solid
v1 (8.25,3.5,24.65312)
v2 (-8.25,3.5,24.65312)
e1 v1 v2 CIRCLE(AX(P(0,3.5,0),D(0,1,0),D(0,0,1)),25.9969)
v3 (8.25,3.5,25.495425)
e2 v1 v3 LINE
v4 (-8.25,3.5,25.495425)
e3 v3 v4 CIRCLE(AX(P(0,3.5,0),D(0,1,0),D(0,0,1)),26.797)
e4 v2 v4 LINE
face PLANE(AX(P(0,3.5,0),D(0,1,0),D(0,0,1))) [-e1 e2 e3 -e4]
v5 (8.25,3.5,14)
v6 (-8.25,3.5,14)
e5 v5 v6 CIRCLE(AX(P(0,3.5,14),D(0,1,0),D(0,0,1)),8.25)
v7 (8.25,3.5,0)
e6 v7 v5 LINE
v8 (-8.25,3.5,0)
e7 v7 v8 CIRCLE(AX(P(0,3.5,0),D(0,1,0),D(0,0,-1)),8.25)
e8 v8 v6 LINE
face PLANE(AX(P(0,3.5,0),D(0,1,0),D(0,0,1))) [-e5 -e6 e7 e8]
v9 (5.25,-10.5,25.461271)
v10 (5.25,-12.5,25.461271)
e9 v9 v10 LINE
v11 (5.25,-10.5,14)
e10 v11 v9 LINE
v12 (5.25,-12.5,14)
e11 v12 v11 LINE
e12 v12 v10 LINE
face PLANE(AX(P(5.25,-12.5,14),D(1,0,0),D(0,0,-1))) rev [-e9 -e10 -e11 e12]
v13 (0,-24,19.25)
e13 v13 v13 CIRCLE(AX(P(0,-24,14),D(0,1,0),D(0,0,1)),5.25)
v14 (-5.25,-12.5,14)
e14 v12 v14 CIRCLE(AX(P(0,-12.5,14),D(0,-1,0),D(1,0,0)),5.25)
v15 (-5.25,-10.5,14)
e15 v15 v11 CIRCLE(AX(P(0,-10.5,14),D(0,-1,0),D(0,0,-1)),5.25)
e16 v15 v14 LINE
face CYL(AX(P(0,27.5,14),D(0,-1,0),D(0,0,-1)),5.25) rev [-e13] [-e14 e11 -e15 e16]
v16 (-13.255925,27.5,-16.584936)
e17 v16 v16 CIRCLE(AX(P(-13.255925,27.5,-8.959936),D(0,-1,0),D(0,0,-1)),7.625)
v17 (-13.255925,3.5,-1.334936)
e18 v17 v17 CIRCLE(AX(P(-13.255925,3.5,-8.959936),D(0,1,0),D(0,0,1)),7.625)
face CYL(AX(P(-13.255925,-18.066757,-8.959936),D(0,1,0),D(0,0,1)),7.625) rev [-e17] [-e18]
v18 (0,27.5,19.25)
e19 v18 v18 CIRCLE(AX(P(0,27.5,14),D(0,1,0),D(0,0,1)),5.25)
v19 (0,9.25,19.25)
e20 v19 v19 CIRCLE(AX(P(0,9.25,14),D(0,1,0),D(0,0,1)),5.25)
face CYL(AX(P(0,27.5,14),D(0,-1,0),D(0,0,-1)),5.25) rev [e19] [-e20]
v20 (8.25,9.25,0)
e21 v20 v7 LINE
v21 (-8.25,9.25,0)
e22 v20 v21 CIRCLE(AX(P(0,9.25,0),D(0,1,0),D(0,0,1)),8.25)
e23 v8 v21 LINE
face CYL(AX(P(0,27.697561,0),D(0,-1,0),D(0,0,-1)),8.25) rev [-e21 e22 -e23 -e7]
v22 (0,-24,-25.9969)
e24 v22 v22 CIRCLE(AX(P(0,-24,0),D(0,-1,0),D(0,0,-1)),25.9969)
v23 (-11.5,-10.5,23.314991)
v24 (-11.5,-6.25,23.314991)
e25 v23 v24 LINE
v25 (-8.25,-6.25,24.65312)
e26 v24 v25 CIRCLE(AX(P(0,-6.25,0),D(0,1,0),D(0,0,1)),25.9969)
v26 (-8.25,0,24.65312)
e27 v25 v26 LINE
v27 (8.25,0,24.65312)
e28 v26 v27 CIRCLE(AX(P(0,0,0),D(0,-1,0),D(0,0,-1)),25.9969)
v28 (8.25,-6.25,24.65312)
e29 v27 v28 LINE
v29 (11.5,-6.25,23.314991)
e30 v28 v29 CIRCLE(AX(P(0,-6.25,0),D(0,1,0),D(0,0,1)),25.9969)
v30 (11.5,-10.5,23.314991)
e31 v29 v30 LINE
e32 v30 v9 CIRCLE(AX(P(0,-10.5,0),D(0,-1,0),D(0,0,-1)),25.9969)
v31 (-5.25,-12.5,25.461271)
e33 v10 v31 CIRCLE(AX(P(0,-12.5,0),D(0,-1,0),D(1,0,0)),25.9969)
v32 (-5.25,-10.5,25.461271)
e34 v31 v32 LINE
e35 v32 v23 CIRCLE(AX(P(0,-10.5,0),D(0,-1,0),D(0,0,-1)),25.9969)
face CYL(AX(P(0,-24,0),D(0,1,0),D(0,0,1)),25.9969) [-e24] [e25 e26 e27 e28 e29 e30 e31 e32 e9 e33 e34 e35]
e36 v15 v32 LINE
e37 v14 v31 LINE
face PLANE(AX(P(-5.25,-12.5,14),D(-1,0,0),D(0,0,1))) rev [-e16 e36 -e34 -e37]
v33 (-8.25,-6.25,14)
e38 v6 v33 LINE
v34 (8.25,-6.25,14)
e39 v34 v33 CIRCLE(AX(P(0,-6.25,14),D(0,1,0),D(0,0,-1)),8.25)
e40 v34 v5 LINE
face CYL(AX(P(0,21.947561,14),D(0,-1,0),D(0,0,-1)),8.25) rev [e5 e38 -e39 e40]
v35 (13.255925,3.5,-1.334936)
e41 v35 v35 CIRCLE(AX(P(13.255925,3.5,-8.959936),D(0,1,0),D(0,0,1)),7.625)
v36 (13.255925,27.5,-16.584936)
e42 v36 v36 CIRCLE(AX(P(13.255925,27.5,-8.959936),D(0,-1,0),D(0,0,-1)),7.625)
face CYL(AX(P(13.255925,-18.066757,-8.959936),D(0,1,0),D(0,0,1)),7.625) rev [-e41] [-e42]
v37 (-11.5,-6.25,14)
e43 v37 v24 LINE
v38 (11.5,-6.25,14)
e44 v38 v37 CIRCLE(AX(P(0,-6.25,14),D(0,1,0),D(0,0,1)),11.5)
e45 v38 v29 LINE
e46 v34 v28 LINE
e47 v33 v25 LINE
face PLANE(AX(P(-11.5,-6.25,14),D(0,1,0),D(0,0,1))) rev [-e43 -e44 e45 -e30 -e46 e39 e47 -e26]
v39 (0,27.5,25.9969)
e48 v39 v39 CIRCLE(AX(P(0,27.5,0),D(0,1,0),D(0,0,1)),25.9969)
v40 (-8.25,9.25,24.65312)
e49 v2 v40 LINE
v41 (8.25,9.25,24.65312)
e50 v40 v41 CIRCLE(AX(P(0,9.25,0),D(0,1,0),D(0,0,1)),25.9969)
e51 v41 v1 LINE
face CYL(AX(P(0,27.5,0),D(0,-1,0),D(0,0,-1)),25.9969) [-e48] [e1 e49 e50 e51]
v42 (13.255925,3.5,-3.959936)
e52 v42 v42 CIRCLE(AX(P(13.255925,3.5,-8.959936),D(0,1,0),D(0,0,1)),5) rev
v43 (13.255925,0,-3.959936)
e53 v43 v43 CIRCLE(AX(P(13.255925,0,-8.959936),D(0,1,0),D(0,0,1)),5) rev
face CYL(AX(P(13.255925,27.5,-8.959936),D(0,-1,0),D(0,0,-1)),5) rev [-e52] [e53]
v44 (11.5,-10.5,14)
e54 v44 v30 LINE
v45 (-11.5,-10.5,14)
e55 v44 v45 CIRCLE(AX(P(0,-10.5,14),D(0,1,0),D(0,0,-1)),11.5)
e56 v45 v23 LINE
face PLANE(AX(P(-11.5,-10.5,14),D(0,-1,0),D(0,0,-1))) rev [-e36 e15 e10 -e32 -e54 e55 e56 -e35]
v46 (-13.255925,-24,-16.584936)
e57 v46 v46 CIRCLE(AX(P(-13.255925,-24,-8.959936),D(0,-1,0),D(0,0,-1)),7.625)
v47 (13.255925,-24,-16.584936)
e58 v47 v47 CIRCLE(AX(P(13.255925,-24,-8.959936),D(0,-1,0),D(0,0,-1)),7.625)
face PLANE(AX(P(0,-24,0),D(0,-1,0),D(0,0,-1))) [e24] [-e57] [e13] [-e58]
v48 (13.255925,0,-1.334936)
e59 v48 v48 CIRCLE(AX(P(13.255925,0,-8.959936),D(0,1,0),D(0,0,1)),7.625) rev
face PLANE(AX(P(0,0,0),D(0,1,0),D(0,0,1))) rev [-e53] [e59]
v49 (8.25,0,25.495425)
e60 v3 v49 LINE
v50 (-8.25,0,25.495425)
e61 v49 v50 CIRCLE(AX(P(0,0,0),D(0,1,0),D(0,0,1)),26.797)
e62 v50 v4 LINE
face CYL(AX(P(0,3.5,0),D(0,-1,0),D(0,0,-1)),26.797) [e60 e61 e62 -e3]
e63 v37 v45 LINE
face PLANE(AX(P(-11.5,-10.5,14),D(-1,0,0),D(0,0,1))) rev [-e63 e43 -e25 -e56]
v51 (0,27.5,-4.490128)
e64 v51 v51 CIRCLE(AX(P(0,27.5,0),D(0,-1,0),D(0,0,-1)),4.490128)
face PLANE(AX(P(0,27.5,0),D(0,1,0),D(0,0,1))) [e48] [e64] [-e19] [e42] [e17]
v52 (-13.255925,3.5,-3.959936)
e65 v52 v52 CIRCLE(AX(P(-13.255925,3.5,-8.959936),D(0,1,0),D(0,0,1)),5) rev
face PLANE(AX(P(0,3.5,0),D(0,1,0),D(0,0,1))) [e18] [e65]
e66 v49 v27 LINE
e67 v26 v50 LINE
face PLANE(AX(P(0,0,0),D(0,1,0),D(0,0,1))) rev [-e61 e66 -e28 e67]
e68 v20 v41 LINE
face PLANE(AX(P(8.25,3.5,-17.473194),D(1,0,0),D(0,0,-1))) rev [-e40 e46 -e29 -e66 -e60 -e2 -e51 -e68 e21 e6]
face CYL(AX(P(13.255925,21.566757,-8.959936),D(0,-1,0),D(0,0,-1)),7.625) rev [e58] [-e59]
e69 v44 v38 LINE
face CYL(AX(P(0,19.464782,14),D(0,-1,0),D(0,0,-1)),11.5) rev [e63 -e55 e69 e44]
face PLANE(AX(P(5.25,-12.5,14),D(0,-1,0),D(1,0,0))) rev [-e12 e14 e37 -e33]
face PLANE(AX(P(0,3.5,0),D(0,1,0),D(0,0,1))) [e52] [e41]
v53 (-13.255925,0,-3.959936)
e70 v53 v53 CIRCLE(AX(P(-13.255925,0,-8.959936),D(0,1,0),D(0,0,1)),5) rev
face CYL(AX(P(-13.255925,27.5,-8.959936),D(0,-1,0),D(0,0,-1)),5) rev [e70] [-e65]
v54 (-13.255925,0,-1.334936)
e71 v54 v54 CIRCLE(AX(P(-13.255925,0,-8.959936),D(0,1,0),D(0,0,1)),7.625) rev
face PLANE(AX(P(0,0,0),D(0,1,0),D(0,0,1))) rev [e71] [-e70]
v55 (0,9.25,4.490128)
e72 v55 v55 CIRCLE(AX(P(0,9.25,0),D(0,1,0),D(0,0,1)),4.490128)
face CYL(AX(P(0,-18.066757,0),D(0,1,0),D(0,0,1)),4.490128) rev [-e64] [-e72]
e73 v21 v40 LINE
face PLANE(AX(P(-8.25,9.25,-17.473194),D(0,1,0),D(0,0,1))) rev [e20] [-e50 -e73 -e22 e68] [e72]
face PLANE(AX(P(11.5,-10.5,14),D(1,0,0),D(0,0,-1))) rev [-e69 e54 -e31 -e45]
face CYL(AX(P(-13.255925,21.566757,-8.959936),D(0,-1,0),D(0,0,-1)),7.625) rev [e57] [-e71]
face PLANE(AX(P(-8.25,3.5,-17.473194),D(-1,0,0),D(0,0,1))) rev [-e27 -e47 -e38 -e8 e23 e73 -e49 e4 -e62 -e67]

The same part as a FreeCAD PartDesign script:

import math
import FreeCAD as App
import Part
import Sketcher


def add_polygon(sketch, points):
    """Adds a closed chain of lines whose ends are joined by coincident constraints."""
    first, n = sketch.GeometryCount, len(points)
    for a, b in zip(points, points[1:] + points[:1]):
        sketch.addGeometry(Part.LineSegment(App.Vector(*a, 0), App.Vector(*b, 0)), False)
    for i in range(n):
        sketch.addConstraint(Sketcher.Constraint("Coincident", first + i, 2, first + (i + 1) % n, 1))

doc = App.newDocument("Part")
params = doc.addObject("Spreadsheet::Sheet", "Params")
for row, (alias, value) in enumerate([
    ("pad1_length", "3.5 mm"),
    ("pad2_length", "24 mm"),
    ("pad3_length", "24 mm"),
    ("sketch4_diameter", "15.25 mm"),
    ("pocket1_length", "24 mm"),
    ("sketch5_diameter", "15.25 mm"),
    ("pocket2_length", "24 mm"),
    ("sketch6_diameter", "10 mm"),
    ("sketch6_diameter2", "10.5 mm"),
    ("sketch7_width", "16.5 mm"),
    ("sketch7_height", "5.75 mm"),
    ("pocket4_length", "25.9969 mm"),
    ("sketch8_radius", "8.25 mm"),
    ("pocket5_length", "5.75 mm"),
    ("sketch9_width", "16.5 mm"),
    ("sketch9_height", "9.75 mm"),
    ("pocket6_length", "12.797 mm"),
    ("sketch10_radius", "8.25 mm"),
    ("pocket7_length", "9.75 mm"),
    ("sketch11_width", "23 mm"),
    ("sketch11_height", "4.25 mm"),
    ("pocket8_length", "12.797 mm"),
    ("sketch12_radius", "11.5 mm"),
    ("pocket9_length", "4.25 mm"),
    ("sketch13_height", "2 mm"),
    ("sketch13_width", "10.5 mm"),
    ("pocket10_length", "11.9969 mm"),
], start=1):
    params.set(f"A{row}", alias)
    params.set(f"B{row}", "=" + value)
    params.setAlias(f"B{row}", alias)

body = doc.addObject("PartDesign::Body", "Body")

sketch1 = body.newObject("Sketcher::SketchObject", "Sketch")
sketch1.AttachmentSupport = (doc.getObject("XZ_Plane"), [""])
sketch1.MapMode = "FlatFace"
sketch1.addGeometry(Part.Circle(App.Vector(0, 0, 0), App.Vector(0, 0, 1), 26.797), False)
sketch1.addConstraint([
    Sketcher.Constraint("Coincident", 0, 3, -1, 1),
    Sketcher.Constraint("Diameter", 0, 53.594),
])
pad1 = body.newObject("PartDesign::Pad", "Pad")
pad1.Profile = sketch1
pad1.setExpression("Length", "Params.pad1_length")
pad1.Reversed = True

sketch2 = body.newObject("Sketcher::SketchObject", "Sketch001")
sketch2.AttachmentSupport = (doc.getObject("XZ_Plane"), [""])
sketch2.MapMode = "FlatFace"
sketch2.AttachmentOffset = App.Placement(App.Vector(0, 0, -3.5), App.Rotation())
sketch2.addGeometry(Part.Circle(App.Vector(0, 0, 0), App.Vector(0, 0, 1), 25.9969), False)
sketch2.addConstraint([
    Sketcher.Constraint("Coincident", 0, 3, -1, 1),
    Sketcher.Constraint("Diameter", 0, 51.9938),
])
pad2 = body.newObject("PartDesign::Pad", "Pad001")
pad2.Profile = sketch2
pad2.setExpression("Length", "Params.pad2_length")
pad2.Reversed = True

sketch3 = body.newObject("Sketcher::SketchObject", "Sketch002")
sketch3.AttachmentSupport = (doc.getObject("XZ_Plane"), [""])
sketch3.MapMode = "FlatFace"
sketch3.addGeometry(Part.Circle(App.Vector(0, 0, 0), App.Vector(0, 0, 1), 25.9969), False)
sketch3.addConstraint([
    Sketcher.Constraint("Coincident", 0, 3, -1, 1),
    Sketcher.Constraint("Diameter", 0, 51.9938),
])
pad3 = body.newObject("PartDesign::Pad", "Pad002")
pad3.Profile = sketch3
pad3.setExpression("Length", "Params.pad3_length")

sketch4 = body.newObject("Sketcher::SketchObject", "Sketch003")
sketch4.AttachmentSupport = (doc.getObject("XZ_Plane"), [""])
sketch4.MapMode = "FlatFace"
sketch4.AttachmentOffset = App.Placement(App.Vector(0, 0, 24), App.Rotation())
sketch4.addGeometry([
    Part.Circle(App.Vector(-13.255925, -8.959936, 0), App.Vector(0, 0, 1), 7.625),
    Part.Circle(App.Vector(13.255925, -8.959936, 0), App.Vector(0, 0, 1), 7.625),
], False)
sketch4.addConstraint([
    Sketcher.Constraint("Equal", 0, 1),
    Sketcher.Constraint("Symmetric", 0, 3, 1, 3, -2),
    Sketcher.Constraint("Diameter", 0, 15.25),
    Sketcher.Constraint("DistanceX", 0, 3, 1, 3, 26.51185),
    Sketcher.Constraint("DistanceY", 0, 3, -1, 1, 8.959936),
])
sketch4.setExpression("Constraints[2]", "Params.sketch4_diameter")
pocket1 = body.newObject("PartDesign::Pocket", "Pocket")
pocket1.Profile = sketch4
pocket1.setExpression("Length", "Params.pocket1_length")

sketch5 = body.newObject("Sketcher::SketchObject", "Sketch004")
sketch5.AttachmentSupport = (doc.getObject("XZ_Plane"), [""])
sketch5.MapMode = "FlatFace"
sketch5.AttachmentOffset = App.Placement(App.Vector(0, 0, -27.5), App.Rotation())
sketch5.addGeometry([
    Part.Circle(App.Vector(13.255925, -8.959936, 0), App.Vector(0, 0, 1), 7.625),
    Part.Circle(App.Vector(-13.255925, -8.959936, 0), App.Vector(0, 0, 1), 7.625),
    Part.Circle(App.Vector(0, 0, 0), App.Vector(0, 0, 1), 4.490128),
], False)
sketch5.addConstraint([
    Sketcher.Constraint("Coincident", 2, 3, -1, 1),
    Sketcher.Constraint("Equal", 0, 1),
    Sketcher.Constraint("Symmetric", 0, 3, 1, 3, -2),
    Sketcher.Constraint("Diameter", 0, 15.25),
    Sketcher.Constraint("Diameter", 2, 8.980256),
    Sketcher.Constraint("DistanceX", 1, 3, 0, 3, 26.51185),
    Sketcher.Constraint("DistanceY", 0, 3, -1, 1, 8.959936),
])
sketch5.setExpression("Constraints[3]", "Params.sketch5_diameter")
pocket2 = body.newObject("PartDesign::Pocket", "Pocket001")
pocket2.Profile = sketch5
pocket2.setExpression("Length", "Params.pocket2_length")
pocket2.Reversed = True

sketch6 = body.newObject("Sketcher::SketchObject", "Sketch005")
sketch6.AttachmentSupport = (doc.getObject("XZ_Plane"), [""])
sketch6.MapMode = "FlatFace"
sketch6.AttachmentOffset = App.Placement(App.Vector(0, 0, 24), App.Rotation())
sketch6.addGeometry([
    Part.Circle(App.Vector(0, 14, 0), App.Vector(0, 0, 1), 5.25),
    Part.Circle(App.Vector(13.255925, -8.959936, 0), App.Vector(0, 0, 1), 5),
    Part.Circle(App.Vector(-13.255925, -8.959936, 0), App.Vector(0, 0, 1), 5),
], False)
sketch6.addConstraint([
    Sketcher.Constraint("Equal", 1, 2),
    Sketcher.Constraint("Symmetric", 1, 3, 2, 3, -2),
    Sketcher.Constraint("PointOnObject", 0, 3, -2),
    Sketcher.Constraint("Diameter", 1, 10.0),
    Sketcher.Constraint("Diameter", 0, 10.5),
    Sketcher.Constraint("DistanceY", -1, 1, 0, 3, 14.0),
    Sketcher.Constraint("DistanceX", 2, 3, 1, 3, 26.51185),
    Sketcher.Constraint("DistanceY", 1, 3, -1, 1, 8.959936),
])
sketch6.setExpression("Constraints[3]", "Params.sketch6_diameter")
sketch6.setExpression("Constraints[4]", "Params.sketch6_diameter2")
pocket3 = body.newObject("PartDesign::Pocket", "Pocket002")
pocket3.Profile = sketch6
pocket3.Type = "ThroughAll"

sketch7 = body.newObject("Sketcher::SketchObject", "Sketch006")
sketch7.AttachmentSupport = (doc.getObject("XY_Plane"), [""])
sketch7.MapMode = "FlatFace"
add_polygon(sketch7, [(-8.25, 9.25), (-8.25, 3.5), (8.25, 3.5), (8.25, 9.25)])
sketch7.addConstraint([
    Sketcher.Constraint("Vertical", 0),
    Sketcher.Constraint("Horizontal", 1),
    Sketcher.Constraint("Vertical", 2),
    Sketcher.Constraint("Horizontal", 3),
    Sketcher.Constraint("DistanceX", 1, 1, 1, 2, 16.5),
    Sketcher.Constraint("DistanceY", 0, 2, 0, 1, 5.75),
    Sketcher.Constraint("DistanceY", -1, 1, 0, 2, 3.5),
    Sketcher.Constraint("DistanceX", 0, 2, -1, 1, 8.25),
])
sketch7.setExpression("Constraints[8]", "Params.sketch7_width")
sketch7.setExpression("Constraints[9]", "Params.sketch7_height")
pocket4 = body.newObject("PartDesign::Pocket", "Pocket003")
pocket4.Profile = sketch7
pocket4.setExpression("Length", "Params.pocket4_length")
pocket4.Reversed = True

sketch8 = body.newObject("Sketcher::SketchObject", "Sketch007")
sketch8.AttachmentSupport = (doc.getObject("XZ_Plane"), [""])
sketch8.MapMode = "FlatFace"
sketch8.AttachmentOffset = App.Placement(App.Vector(0, 0, -3.5), App.Rotation())
sketch8.addGeometry([
    Part.LineSegment(App.Vector(-8.25, 0, 0), App.Vector(8.25, 0, 0)),
    Part.ArcOfCircle(Part.Circle(App.Vector(0, 0, 0), App.Vector(0, 0, 1), 8.25), math.radians(180), math.radians(360)),
], False)
sketch8.addConstraint([
    Sketcher.Constraint("Coincident", 0, 1, 1, 1),
    Sketcher.Constraint("Coincident", 1, 2, 0, 2),
    Sketcher.Constraint("Horizontal", 0),
    Sketcher.Constraint("Coincident", 1, 3, -1, 1),
    Sketcher.Constraint("PointOnObject", 0, 1, -1),
    Sketcher.Constraint("Radius", 1, 8.25),
])
sketch8.setExpression("Constraints[5]", "Params.sketch8_radius")
pocket5 = body.newObject("PartDesign::Pocket", "Pocket004")
pocket5.Profile = sketch8
pocket5.setExpression("Length", "Params.pocket5_length")

sketch9 = body.newObject("Sketcher::SketchObject", "Sketch008")
sketch9.AttachmentSupport = (doc.getObject("XY_Plane"), [""])
sketch9.MapMode = "FlatFace"
sketch9.AttachmentOffset = App.Placement(App.Vector(0, 0, 26.797), App.Rotation())
add_polygon(sketch9, [(-8.25, 3.5), (-8.25, -6.25), (8.25, -6.25), (8.25, 3.5)])
sketch9.addConstraint([
    Sketcher.Constraint("Vertical", 0),
    Sketcher.Constraint("Horizontal", 1),
    Sketcher.Constraint("Vertical", 2),
    Sketcher.Constraint("Horizontal", 3),
    Sketcher.Constraint("DistanceX", 1, 1, 1, 2, 16.5),
    Sketcher.Constraint("DistanceY", 0, 2, 0, 1, 9.75),
    Sketcher.Constraint("DistanceY", -1, 1, 2, 2, 3.5),
    Sketcher.Constraint("DistanceX", 0, 2, -1, 1, 8.25),
])
sketch9.setExpression("Constraints[8]", "Params.sketch9_width")
sketch9.setExpression("Constraints[9]", "Params.sketch9_height")
pocket6 = body.newObject("PartDesign::Pocket", "Pocket005")
pocket6.Profile = sketch9
pocket6.setExpression("Length", "Params.pocket6_length")

sketch10 = body.newObject("Sketcher::SketchObject", "Sketch009")
sketch10.AttachmentSupport = (doc.getObject("XZ_Plane"), [""])
sketch10.MapMode = "FlatFace"
sketch10.AttachmentOffset = App.Placement(App.Vector(0, 0, 6.25), App.Rotation())
sketch10.addGeometry([
    Part.LineSegment(App.Vector(-8.25, 14, 0), App.Vector(8.25, 14, 0)),
    Part.ArcOfCircle(Part.Circle(App.Vector(0, 14, 0), App.Vector(0, 0, 1), 8.25), math.radians(180), math.radians(360)),
], False)
sketch10.addConstraint([
    Sketcher.Constraint("Coincident", 0, 1, 1, 1),
    Sketcher.Constraint("Coincident", 1, 2, 0, 2),
    Sketcher.Constraint("Horizontal", 0),
    Sketcher.Constraint("PointOnObject", 1, 3, -2),
    Sketcher.Constraint("Horizontal", 1, 3, 0, 1),
    Sketcher.Constraint("Radius", 1, 8.25),
    Sketcher.Constraint("DistanceY", -1, 1, 1, 3, 14.0),
])
sketch10.setExpression("Constraints[5]", "Params.sketch10_radius")
pocket7 = body.newObject("PartDesign::Pocket", "Pocket006")
pocket7.Profile = sketch10
pocket7.setExpression("Length", "Params.pocket7_length")

sketch11 = body.newObject("Sketcher::SketchObject", "Sketch010")
sketch11.AttachmentSupport = (doc.getObject("XY_Plane"), [""])
sketch11.MapMode = "FlatFace"
sketch11.AttachmentOffset = App.Placement(App.Vector(0, 0, 26.797), App.Rotation())
add_polygon(sketch11, [(-11.5, -6.25), (-11.5, -10.5), (11.5, -10.5), (11.5, -6.25)])
sketch11.addConstraint([
    Sketcher.Constraint("Vertical", 0),
    Sketcher.Constraint("Horizontal", 1),
    Sketcher.Constraint("Vertical", 2),
    Sketcher.Constraint("Horizontal", 3),
    Sketcher.Constraint("DistanceX", 1, 1, 1, 2, 23.0),
    Sketcher.Constraint("DistanceY", 0, 2, 0, 1, 4.25),
    Sketcher.Constraint("DistanceX", 0, 2, -1, 1, 11.5),
    Sketcher.Constraint("DistanceY", 0, 2, -1, 1, 10.5),
])
sketch11.setExpression("Constraints[8]", "Params.sketch11_width")
sketch11.setExpression("Constraints[9]", "Params.sketch11_height")
pocket8 = body.newObject("PartDesign::Pocket", "Pocket007")
pocket8.Profile = sketch11
pocket8.setExpression("Length", "Params.pocket8_length")

sketch12 = body.newObject("Sketcher::SketchObject", "Sketch011")
sketch12.AttachmentSupport = (doc.getObject("XZ_Plane"), [""])
sketch12.MapMode = "FlatFace"
sketch12.AttachmentOffset = App.Placement(App.Vector(0, 0, 10.5), App.Rotation())
sketch12.addGeometry([
    Part.LineSegment(App.Vector(-11.5, 14, 0), App.Vector(11.5, 14, 0)),
    Part.ArcOfCircle(Part.Circle(App.Vector(0, 14, 0), App.Vector(0, 0, 1), 11.5), math.radians(180), math.radians(360)),
], False)
sketch12.addConstraint([
    Sketcher.Constraint("Coincident", 0, 1, 1, 1),
    Sketcher.Constraint("Coincident", 1, 2, 0, 2),
    Sketcher.Constraint("Horizontal", 0),
    Sketcher.Constraint("PointOnObject", 1, 3, -2),
    Sketcher.Constraint("Horizontal", 1, 3, 0, 1),
    Sketcher.Constraint("Radius", 1, 11.5),
    Sketcher.Constraint("DistanceY", -1, 1, 1, 3, 14.0),
])
sketch12.setExpression("Constraints[5]", "Params.sketch12_radius")
pocket9 = body.newObject("PartDesign::Pocket", "Pocket008")
pocket9.Profile = sketch12
pocket9.setExpression("Length", "Params.pocket9_length")

sketch13 = body.newObject("Sketcher::SketchObject", "Sketch012")
sketch13.AttachmentSupport = (doc.getObject("XY_Plane"), [""])
sketch13.MapMode = "FlatFace"
sketch13.AttachmentOffset = App.Placement(App.Vector(0, 0, 14), App.Rotation())
add_polygon(sketch13, [(-5.25, -10.5), (-5.25, -12.5), (5.25, -12.5), (5.25, -10.5)])
sketch13.addConstraint([
    Sketcher.Constraint("Vertical", 0),
    Sketcher.Constraint("Horizontal", 1),
    Sketcher.Constraint("Vertical", 2),
    Sketcher.Constraint("Horizontal", 3),
    Sketcher.Constraint("DistanceY", 0, 2, 0, 1, 2.0),
    Sketcher.Constraint("DistanceX", 1, 1, 1, 2, 10.5),
    Sketcher.Constraint("DistanceY", 0, 2, -1, 1, 12.5),
    Sketcher.Constraint("DistanceX", 0, 2, -1, 1, 5.25),
])
sketch13.setExpression("Constraints[8]", "Params.sketch13_height")
sketch13.setExpression("Constraints[9]", "Params.sketch13_width")
pocket10 = body.newObject("PartDesign::Pocket", "Pocket009")
pocket10.Profile = sketch13
pocket10.setExpression("Length", "Params.pocket10_length")
pocket10.Reversed = True

doc.recompute()
